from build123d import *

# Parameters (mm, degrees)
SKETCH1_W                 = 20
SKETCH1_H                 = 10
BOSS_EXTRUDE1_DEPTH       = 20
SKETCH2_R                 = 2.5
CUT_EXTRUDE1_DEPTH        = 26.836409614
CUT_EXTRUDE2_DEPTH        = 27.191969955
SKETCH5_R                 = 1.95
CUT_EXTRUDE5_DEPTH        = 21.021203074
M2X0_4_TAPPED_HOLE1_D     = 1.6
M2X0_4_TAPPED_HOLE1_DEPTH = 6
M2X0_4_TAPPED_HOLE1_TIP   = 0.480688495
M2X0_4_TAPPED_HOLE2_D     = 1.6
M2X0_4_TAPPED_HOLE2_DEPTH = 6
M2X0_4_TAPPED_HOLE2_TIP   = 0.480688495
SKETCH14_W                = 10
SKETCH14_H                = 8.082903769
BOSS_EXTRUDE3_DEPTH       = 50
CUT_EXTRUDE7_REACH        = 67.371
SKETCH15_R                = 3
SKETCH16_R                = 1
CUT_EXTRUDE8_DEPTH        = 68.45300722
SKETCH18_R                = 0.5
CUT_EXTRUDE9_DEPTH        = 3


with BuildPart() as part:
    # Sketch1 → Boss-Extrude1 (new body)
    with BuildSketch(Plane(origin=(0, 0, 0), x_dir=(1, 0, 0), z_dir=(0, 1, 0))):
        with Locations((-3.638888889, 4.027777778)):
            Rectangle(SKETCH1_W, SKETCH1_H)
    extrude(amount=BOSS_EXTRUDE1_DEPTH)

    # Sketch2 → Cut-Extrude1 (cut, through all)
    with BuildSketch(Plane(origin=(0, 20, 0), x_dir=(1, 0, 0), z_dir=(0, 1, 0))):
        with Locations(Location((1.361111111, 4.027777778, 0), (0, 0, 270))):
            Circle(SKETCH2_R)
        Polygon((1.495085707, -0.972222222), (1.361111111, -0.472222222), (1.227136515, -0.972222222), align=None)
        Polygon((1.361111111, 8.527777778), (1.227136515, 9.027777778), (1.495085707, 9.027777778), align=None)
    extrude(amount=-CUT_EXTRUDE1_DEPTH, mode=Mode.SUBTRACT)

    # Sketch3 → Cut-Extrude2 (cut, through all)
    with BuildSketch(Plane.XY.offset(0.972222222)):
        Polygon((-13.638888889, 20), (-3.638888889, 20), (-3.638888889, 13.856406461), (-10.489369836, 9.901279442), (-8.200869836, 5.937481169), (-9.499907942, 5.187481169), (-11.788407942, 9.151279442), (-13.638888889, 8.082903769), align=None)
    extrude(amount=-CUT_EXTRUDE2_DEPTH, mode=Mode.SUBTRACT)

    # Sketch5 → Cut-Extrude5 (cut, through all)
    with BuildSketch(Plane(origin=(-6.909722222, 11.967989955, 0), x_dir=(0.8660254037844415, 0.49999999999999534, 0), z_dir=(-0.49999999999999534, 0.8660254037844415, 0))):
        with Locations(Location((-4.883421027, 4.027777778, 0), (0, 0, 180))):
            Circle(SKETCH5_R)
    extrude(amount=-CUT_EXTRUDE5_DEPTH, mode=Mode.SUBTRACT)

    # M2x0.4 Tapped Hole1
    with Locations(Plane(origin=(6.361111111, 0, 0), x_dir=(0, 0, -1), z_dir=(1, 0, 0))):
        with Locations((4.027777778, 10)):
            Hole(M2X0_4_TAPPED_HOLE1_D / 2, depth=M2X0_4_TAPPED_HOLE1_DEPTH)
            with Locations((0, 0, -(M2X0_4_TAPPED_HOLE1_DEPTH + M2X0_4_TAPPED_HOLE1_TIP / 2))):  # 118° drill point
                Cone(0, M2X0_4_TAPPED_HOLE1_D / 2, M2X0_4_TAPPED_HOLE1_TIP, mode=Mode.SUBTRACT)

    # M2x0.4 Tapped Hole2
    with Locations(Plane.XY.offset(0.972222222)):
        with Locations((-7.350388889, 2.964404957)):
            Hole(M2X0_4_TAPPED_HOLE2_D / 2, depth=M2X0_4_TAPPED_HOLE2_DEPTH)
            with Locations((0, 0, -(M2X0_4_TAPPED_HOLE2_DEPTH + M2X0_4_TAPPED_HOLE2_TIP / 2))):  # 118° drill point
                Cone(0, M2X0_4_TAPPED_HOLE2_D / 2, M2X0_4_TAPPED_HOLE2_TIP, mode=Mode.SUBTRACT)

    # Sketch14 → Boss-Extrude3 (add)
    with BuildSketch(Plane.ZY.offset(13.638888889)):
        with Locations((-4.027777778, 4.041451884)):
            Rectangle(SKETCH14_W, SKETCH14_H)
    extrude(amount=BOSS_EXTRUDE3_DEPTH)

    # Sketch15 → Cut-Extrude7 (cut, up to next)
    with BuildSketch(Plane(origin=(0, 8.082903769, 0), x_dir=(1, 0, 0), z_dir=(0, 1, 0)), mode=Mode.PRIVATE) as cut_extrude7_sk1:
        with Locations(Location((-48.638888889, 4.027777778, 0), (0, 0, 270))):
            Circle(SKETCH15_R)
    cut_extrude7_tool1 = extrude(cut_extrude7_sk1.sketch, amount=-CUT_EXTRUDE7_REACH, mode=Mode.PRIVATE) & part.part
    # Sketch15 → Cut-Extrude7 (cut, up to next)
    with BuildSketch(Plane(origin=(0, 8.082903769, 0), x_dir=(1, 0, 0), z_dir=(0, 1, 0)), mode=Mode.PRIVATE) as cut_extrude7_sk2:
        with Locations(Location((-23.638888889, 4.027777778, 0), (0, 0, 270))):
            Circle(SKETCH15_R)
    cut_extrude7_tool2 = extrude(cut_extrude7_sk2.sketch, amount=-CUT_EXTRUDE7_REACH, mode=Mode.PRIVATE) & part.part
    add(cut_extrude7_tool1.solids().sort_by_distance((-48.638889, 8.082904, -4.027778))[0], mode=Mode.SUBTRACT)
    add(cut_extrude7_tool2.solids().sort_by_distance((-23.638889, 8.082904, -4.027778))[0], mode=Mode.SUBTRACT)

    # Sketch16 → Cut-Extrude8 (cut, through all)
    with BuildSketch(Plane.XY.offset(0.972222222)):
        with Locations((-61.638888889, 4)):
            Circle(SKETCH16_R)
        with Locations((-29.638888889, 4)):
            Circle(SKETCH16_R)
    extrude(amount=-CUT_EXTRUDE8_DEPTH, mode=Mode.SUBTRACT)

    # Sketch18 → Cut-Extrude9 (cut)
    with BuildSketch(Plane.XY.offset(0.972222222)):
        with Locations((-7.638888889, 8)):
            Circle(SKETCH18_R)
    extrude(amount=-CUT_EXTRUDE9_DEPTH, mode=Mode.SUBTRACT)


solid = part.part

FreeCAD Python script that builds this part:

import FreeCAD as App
import Part
import Sketcher
from FreeCAD import Vector
Q = App.Units.Quantity

doc = App.newDocument("Part")
body = doc.addObject("PartDesign::Body", "Body")

sketch1 = doc.addObject("Sketcher::SketchObject", "Sketch")
body.addObject(sketch1)
sketch1.AttachmentSupport = (doc.XZ_Plane, [""])
sketch1.MapMode = "FlatFace"
sketch1.addGeometry(Part.LineSegment(Vector(-14, -9, 0), Vector(-14, 1, 0)), False)
sketch1.addGeometry(Part.LineSegment(Vector(-14, 1, 0), Vector(6, 1, 0)), False)
sketch1.addGeometry(Part.LineSegment(Vector(6, 1, 0), Vector(6, -9, 0)), False)
sketch1.addGeometry(Part.LineSegment(Vector(6, -9, 0), Vector(-14, -9, 0)), False)
sketch1.addConstraint(Sketcher.Constraint("Coincident", 0, 2, 1, 1))
sketch1.addConstraint(Sketcher.Constraint("Coincident", 1, 2, 2, 1))
sketch1.addConstraint(Sketcher.Constraint("Coincident", 2, 2, 3, 1))
sketch1.addConstraint(Sketcher.Constraint("Coincident", 3, 2, 0, 1))
sketch1.addConstraint(Sketcher.Constraint("Vertical", 0))
sketch1.addConstraint(Sketcher.Constraint("Horizontal", 1))
sketch1.addConstraint(Sketcher.Constraint("Vertical", 2))
sketch1.addConstraint(Sketcher.Constraint("Horizontal", 3))
sketch1.addConstraint(Sketcher.Constraint("DistanceX", 1, 1, 1, 2, Q("20 mm")))
sketch1.addConstraint(Sketcher.Constraint("DistanceY", 0, 1, 0, 2, Q("10 mm")))
sketch1.addConstraint(Sketcher.Constraint("DistanceX", 0, 2, -1, 1, Q("13.638889 mm")))
sketch1.addConstraint(Sketcher.Constraint("DistanceY", -1, 1, 0, 2, Q("0.972222 mm")))
pad1 = doc.addObject("PartDesign::Pad", "Pad")
body.addObject(pad1)
pad1.Profile = sketch1
pad1.Length = 20
pad1.Reversed = True

sketch2 = doc.addObject("Sketcher::SketchObject", "Sketch001")
body.addObject(sketch2)
sketch2.AttachmentSupport = (doc.XZ_Plane, [""])
sketch2.MapMode = "FlatFace"
sketch2.AttachmentOffset = App.Placement(Vector(0, 0, -20), App.Rotation())
sketch2.addGeometry(Part.Circle(Vector(1.36, -4.03, 0), Vector(0, 0, 1), 2.5), False)
sketch2.addGeometry(Part.LineSegment(Vector(1.5, 0.97, 0), Vector(1.36, 0.47, 0)), False)
sketch2.addGeometry(Part.LineSegment(Vector(1.36, 0.47, 0), Vector(1.23, 0.97, 0)), False)
sketch2.addGeometry(Part.LineSegment(Vector(1.23, 0.97, 0), Vector(1.5, 0.97, 0)), False)
sketch2.addGeometry(Part.LineSegment(Vector(1.23, -9.03, 0), Vector(1.36, -8.53, 0)), False)
sketch2.addGeometry(Part.LineSegment(Vector(1.36, -8.53, 0), Vector(1.5, -9.03, 0)), False)
sketch2.addGeometry(Part.LineSegment(Vector(1.5, -9.03, 0), Vector(1.23, -9.03, 0)), False)
sketch2.addConstraint(Sketcher.Constraint("Coincident", 1, 2, 2, 1))
sketch2.addConstraint(Sketcher.Constraint("Coincident", 2, 2, 3, 1))
sketch2.addConstraint(Sketcher.Constraint("Coincident", 3, 2, 1, 1))
sketch2.addConstraint(Sketcher.Constraint("Coincident", 4, 2, 5, 1))
sketch2.addConstraint(Sketcher.Constraint("Coincident", 5, 2, 6, 1))
sketch2.addConstraint(Sketcher.Constraint("Coincident", 6, 2, 4, 1))
sketch2.addConstraint(Sketcher.Constraint("Horizontal", 3))
sketch2.addConstraint(Sketcher.Constraint("Horizontal", 6))
sketch2.addConstraint(Sketcher.Constraint("Parallel", 1, 4))
sketch2.addConstraint(Sketcher.Constraint("Parallel", 2, 5))
sketch2.addConstraint(Sketcher.Constraint("Vertical", 0, 3, 1, 2))
sketch2.addConstraint(Sketcher.Constraint("Vertical", 1, 2, 4, 2))
sketch2.addConstraint(Sketcher.Constraint("Vertical", 3, 2, 5, 2))
sketch2.addConstraint(Sketcher.Constraint("Vertical", 2, 2, 6, 2))
sketch2.addConstraint(Sketcher.Constraint("Diameter", 0, Q("5 mm")))
sketch2.addConstraint(Sketcher.Constraint("Angle", 1, Q("-105 deg")))
sketch2.addConstraint(Sketcher.Constraint("DistanceY", 0, 3, 2, 2, Q("5 mm")))
sketch2.addConstraint(Sketcher.Constraint("DistanceY", 4, 2, 1, 2, Q("9 mm")))
sketch2.addConstraint(Sketcher.Constraint("DistanceY", 5, 2, 0, 3, Q("5 mm")))
sketch2.addConstraint(Sketcher.Constraint("DistanceX", -1, 1, 0, 3, Q("1.361111 mm")))
sketch2.addConstraint(Sketcher.Constraint("DistanceY", 0, 3, -1, 1, Q("4.027778 mm")))
pocket1 = doc.addObject("PartDesign::Pocket", "Pocket")
body.addObject(pocket1)
pocket1.Profile = sketch2
pocket1.Type = "ThroughAll"
pocket1.Reversed = True

sketch3 = doc.addObject("Sketcher::SketchObject", "Sketch002")
body.addObject(sketch3)
sketch3.AttachmentSupport = (doc.XY_Plane, [""])
sketch3.MapMode = "FlatFace"
sketch3.AttachmentOffset = App.Placement(Vector(0, 0, 0.972222), App.Rotation())
sketch3.addGeometry(Part.LineSegment(Vector(-3.6, 20, 0), Vector(-13.6, 20, 0)), False)
sketch3.addGeometry(Part.LineSegment(Vector(-13.6, 20, 0), Vector(-13.6, 8.1, 0)), False)
sketch3.addGeometry(Part.LineSegment(Vector(-13.6, 8.1, 0), Vector(-11.8, 9.2, 0)), False)
sketch3.addGeometry(Part.LineSegment(Vector(-11.8, 9.2, 0), Vector(-9.5, 5.2, 0)), False)
sketch3.addGeometry(Part.LineSegment(Vector(-9.5, 5.2, 0), Vector(-8.2, 5.9, 0)), False)
sketch3.addGeometry(Part.LineSegment(Vector(-8.2, 5.9, 0), Vector(-10.5, 9.9, 0)), False)
sketch3.addGeometry(Part.LineSegment(Vector(-10.5, 9.9, 0), Vector(-3.6, 13.9, 0)), False)
sketch3.addGeometry(Part.LineSegment(Vector(-3.6, 13.9, 0), Vector(-3.6, 20, 0)), False)
sketch3.addConstraint(Sketcher.Constraint("Coincident", 0, 2, 1, 1))
sketch3.addConstraint(Sketcher.Constraint("Coincident", 1, 2, 2, 1))
sketch3.addConstraint(Sketcher.Constraint("Coincident", 2, 2, 3, 1))
sketch3.addConstraint(Sketcher.Constraint("Coincident", 3, 2, 4, 1))
sketch3.addConstraint(Sketcher.Constraint("Coincident", 4, 2, 5, 1))
sketch3.addConstraint(Sketcher.Constraint("Coincident", 5, 2, 6, 1))
sketch3.addConstraint(Sketcher.Constraint("Coincident", 6, 2, 7, 1))
sketch3.addConstraint(Sketcher.Constraint("Coincident", 7, 2, 0, 1))
sketch3.addConstraint(Sketcher.Constraint("Horizontal", 0))
sketch3.addConstraint(Sketcher.Constraint("Vertical", 1))
sketch3.addConstraint(Sketcher.Constraint("Vertical", 7))
sketch3.addConstraint(Sketcher.Constraint("Perpendicular", 2, 3))
sketch3.addConstraint(Sketcher.Constraint("Perpendicular", 3, 4))
sketch3.addConstraint(Sketcher.Constraint("Perpendicular", 4, 5))
sketch3.addConstraint(Sketcher.Constraint("Perpendicular", 5, 6))
sketch3.addConstraint(Sketcher.Constraint("Equal", 3, 5))
sketch3.addConstraint(Sketcher.Constraint("DistanceX", 0, 2, 0, 1, Q("10 mm")))
sketch3.addConstraint(Sketcher.Constraint("Angle", 2, Q("30 deg")))
sketch3.addConstraint(Sketcher.Constraint("DistanceY", -1, 1, 0, 2, Q("20 mm")))
sketch3.addConstraint(Sketcher.Constraint("Distance", 4, Q("1.5 mm")))
sketch3.addConstraint(Sketcher.Constraint("Distance", 3, Q("4.577 mm")))
sketch3.addConstraint(Sketcher.Constraint("Distance", 2, Q("2.136751 mm")))
sketch3.addConstraint(Sketcher.Constraint("DistanceY", 1, 2, 1, 1, Q("11.917096 mm")))
sketch3.addConstraint(Sketcher.Constraint("DistanceX", 0, 2, -1, 1, Q("13.638889 mm")))
pocket2 = doc.addObject("PartDesign::Pocket", "Pocket001")
body.addObject(pocket2)
pocket2.Profile = sketch3
pocket2.Type = "ThroughAll"

sketch4 = doc.addObject("Sketcher::SketchObject", "Sketch003")
body.addObject(sketch4)
sketch4.Placement = App.Placement(Vector(-6.909722, 11.96799, 0), App.Rotation(Vector(0.866025404, 0.5, 0), Vector(0, 0, -1), Vector(-0.5, 0.866025404, 0), "ZXY"))
sketch4.addGeometry(Part.Circle(Vector(-4.9, 4, 0), Vector(0, 0, 1), 1.9), False)
sketch4.addConstraint(Sketcher.Constraint("Diameter", 0, Q("3.9 mm")))
sketch4.addConstraint(Sketcher.Constraint("DistanceX", 0, 3, -1, 1, Q("4.883421 mm")))
sketch4.addConstraint(Sketcher.Constraint("DistanceY", -1, 1, 0, 3, Q("4.027778 mm")))
pocket3 = doc.addObject("PartDesign::Pocket", "Pocket002")
body.addObject(pocket3)
pocket3.Profile = sketch4
pocket3.Type = "ThroughAll"

sketch5 = doc.addObject("Sketcher::SketchObject", "Sketch004")
body.addObject(sketch5)
sketch5.AttachmentSupport = (doc.YZ_Plane, [""])
sketch5.MapMode = "FlatFace"
sketch5.AttachmentOffset = App.Placement(Vector(0, 0, 6.361111), App.Rotation())
sketch5.addGeometry(Part.Circle(Vector(10, -4, 0), Vector(0, 0, 1), 0.8), False)
sketch5.addConstraint(Sketcher.Constraint("Diameter", 0, Q("1.6 mm")))
sketch5.addConstraint(Sketcher.Constraint("DistanceX", -1, 1, 0, 3, Q("10 mm")))
sketch5.addConstraint(Sketcher.Constraint("DistanceY", 0, 3, -1, 1, Q("4.027778 mm")))
doc.recompute()
hole = doc.addObject("PartDesign::Hole", "Hole")
body.addObject(hole)
hole.Profile = sketch5
hole.ThreadType = "None"
hole.Diameter = 1.6
hole.DepthType = "Dimension"
hole.Depth = 6
hole.DrillPoint = "Angled"
hole.DrillPointAngle = 118

sketch6 = doc.addObject("Sketcher::SketchObject", "Sketch005")
body.addObject(sketch6)
sketch6.AttachmentSupport = (doc.XY_Plane, [""])
sketch6.MapMode = "FlatFace"
sketch6.AttachmentOffset = App.Placement(Vector(0, 0, 0.972222), App.Rotation())
sketch6.addGeometry(Part.Circle(Vector(-7.4, 3, 0), Vector(0, 0, 1), 0.8), False)
sketch6.addConstraint(Sketcher.Constraint("Diameter", 0, Q("1.6 mm")))
sketch6.addConstraint(Sketcher.Constraint("DistanceX", 0, 3, -1, 1, Q("7.350389 mm")))
sketch6.addConstraint(Sketcher.Constraint("DistanceY", -1, 1, 0, 3, Q("2.964405 mm")))
doc.recompute()
hole2 = doc.addObject("PartDesign::Hole", "Hole001")
body.addObject(hole2)
hole2.Profile = sketch6
hole2.ThreadType = "None"
hole2.Diameter = 1.6
hole2.DepthType = "Dimension"
hole2.Depth = 6
hole2.DrillPoint = "Angled"
hole2.DrillPointAngle = 118

sketch7 = doc.addObject("Sketcher::SketchObject", "Sketch006")
body.addObject(sketch7)
sketch7.AttachmentSupport = (doc.YZ_Plane, [""])
sketch7.MapMode = "FlatFace"
sketch7.AttachmentOffset = App.Placement(Vector(0, 0, -13.638889), App.Rotation())
sketch7.addGeometry(Part.LineSegment(Vector(8, -9, 0), Vector(0, -9, 0)), False)
sketch7.addGeometry(Part.LineSegment(Vector(0, -9, 0), Vector(0, 1, 0)), False)
sketch7.addGeometry(Part.LineSegment(Vector(0, 1, 0), Vector(8, 1, 0)), False)
sketch7.addGeometry(Part.LineSegment(Vector(8, 1, 0), Vector(8, -9, 0)), False)
sketch7.addConstraint(Sketcher.Constraint("Coincident", 0, 2, 1, 1))
sketch7.addConstraint(Sketcher.Constraint("Coincident", 1, 2, 2, 1))
sketch7.addConstraint(Sketcher.Constraint("Coincident", 2, 2, 3, 1))
sketch7.addConstraint(Sketcher.Constraint("Coincident", 3, 2, 0, 1))
sketch7.addConstraint(Sketcher.Constraint("Horizontal", 0))
sketch7.addConstraint(Sketcher.Constraint("Vertical", 1))
sketch7.addConstraint(Sketcher.Constraint("Horizontal", 2))
sketch7.addConstraint(Sketcher.Constraint("Vertical", 3))
sketch7.addConstraint(Sketcher.Constraint("PointOnObject", 0, 2, -2))
sketch7.addConstraint(Sketcher.Constraint("DistanceY", 1, 1, 1, 2, Q("10 mm")))
sketch7.addConstraint(Sketcher.Constraint("DistanceX", 0, 2, 0, 1, Q("8.082904 mm")))
sketch7.addConstraint(Sketcher.Constraint("DistanceY", 0, 2, -1, 1, Q("9.027778 mm")))
pad2 = doc.addObject("PartDesign::Pad", "Pad001")
body.addObject(pad2)
pad2.Profile = sketch7
pad2.Length = 50
pad2.Reversed = True

sketch8 = doc.addObject("Sketcher::SketchObject", "Sketch007")
body.addObject(sketch8)
sketch8.AttachmentSupport = (doc.XZ_Plane, [""])
sketch8.MapMode = "FlatFace"
sketch8.AttachmentOffset = App.Placement(Vector(0, 0, -8.082904), App.Rotation())
sketch8.addGeometry(Part.Circle(Vector(-48.6, -4, 0), Vector(0, 0, 1), 3), False)
sketch8.addConstraint(Sketcher.Constraint("Diameter", 0, Q("6 mm")))
sketch8.addConstraint(Sketcher.Constraint("DistanceX", 0, 3, -1, 1, Q("48.638889 mm")))
sketch8.addConstraint(Sketcher.Constraint("DistanceY", 0, 3, -1, 1, Q("4.027778 mm")))
pocket4 = doc.addObject("PartDesign::Pocket", "Pocket003")
body.addObject(pocket4)
pocket4.Profile = sketch8
pocket4.Type = "UpToFirst"
pocket4.Reversed = True

sketch9 = doc.addObject("Sketcher::SketchObject", "Sketch008")
body.addObject(sketch9)
sketch9.AttachmentSupport = (doc.XZ_Plane, [""])
sketch9.MapMode = "FlatFace"
sketch9.AttachmentOffset = App.Placement(Vector(0, 0, -8.082904), App.Rotation())
sketch9.addGeometry(Part.Circle(Vector(-23.6, -4, 0), Vector(0, 0, 1), 3), False)
sketch9.addConstraint(Sketcher.Constraint("Diameter", 0, Q("6 mm")))
sketch9.addConstraint(Sketcher.Constraint("DistanceX", 0, 3, -1, 1, Q("23.638889 mm")))
sketch9.addConstraint(Sketcher.Constraint("DistanceY", 0, 3, -1, 1, Q("4.027778 mm")))
pocket5 = doc.addObject("PartDesign::Pocket", "Pocket004")
body.addObject(pocket5)
pocket5.Profile = sketch9
pocket5.Type = "UpToFirst"
pocket5.Reversed = True

sketch10 = doc.addObject("Sketcher::SketchObject", "Sketch009")
body.addObject(sketch10)
sketch10.AttachmentSupport = (doc.XY_Plane, [""])
sketch10.MapMode = "FlatFace"
sketch10.AttachmentOffset = App.Placement(Vector(0, 0, 0.972222), App.Rotation())
sketch10.addGeometry(Part.Circle(Vector(-61.6, 4, 0), Vector(0, 0, 1), 1), False)
sketch10.addGeometry(Part.Circle(Vector(-29.6, 4, 0), Vector(0, 0, 1), 1), False)
sketch10.addConstraint(Sketcher.Constraint("Equal", 0, 1))
sketch10.addConstraint(Sketcher.Constraint("Horizontal", 0, 3, 1, 3))
sketch10.addConstraint(Sketcher.Constraint("Diameter", 0, Q("2 mm")))
sketch10.addConstraint(Sketcher.Constraint("DistanceY", -1, 1, 0, 3, Q("4 mm")))
sketch10.addConstraint(Sketcher.Constraint("DistanceX", 0, 3, 1, 3, Q("32 mm")))
sketch10.addConstraint(Sketcher.Constraint("DistanceX", 0, 3, -1, 1, Q("61.638889 mm")))
pocket6 = doc.addObject("PartDesign::Pocket", "Pocket005")
body.addObject(pocket6)
pocket6.Profile = sketch10
pocket6.Type = "ThroughAll"

sketch11 = doc.addObject("Sketcher::SketchObject", "Sketch010")
body.addObject(sketch11)
sketch11.AttachmentSupport = (doc.XY_Plane, [""])
sketch11.MapMode = "FlatFace"
sketch11.AttachmentOffset = App.Placement(Vector(0, 0, 0.972222), App.Rotation())
sketch11.addGeometry(Part.Circle(Vector(-7.6, 8, 0), Vector(0, 0, 1), 0.5), False)
sketch11.addConstraint(Sketcher.Constraint("Diameter", 0, Q("1 mm")))
sketch11.addConstraint(Sketcher.Constraint("DistanceY", -1, 1, 0, 3, Q("8 mm")))
sketch11.addConstraint(Sketcher.Constraint("DistanceX", 0, 3, -1, 1, Q("7.638889 mm")))
pocket7 = doc.addObject("PartDesign::Pocket", "Pocket006")
body.addObject(pocket7)
pocket7.Profile = sketch11
pocket7.Length = 3

doc.recompute()
